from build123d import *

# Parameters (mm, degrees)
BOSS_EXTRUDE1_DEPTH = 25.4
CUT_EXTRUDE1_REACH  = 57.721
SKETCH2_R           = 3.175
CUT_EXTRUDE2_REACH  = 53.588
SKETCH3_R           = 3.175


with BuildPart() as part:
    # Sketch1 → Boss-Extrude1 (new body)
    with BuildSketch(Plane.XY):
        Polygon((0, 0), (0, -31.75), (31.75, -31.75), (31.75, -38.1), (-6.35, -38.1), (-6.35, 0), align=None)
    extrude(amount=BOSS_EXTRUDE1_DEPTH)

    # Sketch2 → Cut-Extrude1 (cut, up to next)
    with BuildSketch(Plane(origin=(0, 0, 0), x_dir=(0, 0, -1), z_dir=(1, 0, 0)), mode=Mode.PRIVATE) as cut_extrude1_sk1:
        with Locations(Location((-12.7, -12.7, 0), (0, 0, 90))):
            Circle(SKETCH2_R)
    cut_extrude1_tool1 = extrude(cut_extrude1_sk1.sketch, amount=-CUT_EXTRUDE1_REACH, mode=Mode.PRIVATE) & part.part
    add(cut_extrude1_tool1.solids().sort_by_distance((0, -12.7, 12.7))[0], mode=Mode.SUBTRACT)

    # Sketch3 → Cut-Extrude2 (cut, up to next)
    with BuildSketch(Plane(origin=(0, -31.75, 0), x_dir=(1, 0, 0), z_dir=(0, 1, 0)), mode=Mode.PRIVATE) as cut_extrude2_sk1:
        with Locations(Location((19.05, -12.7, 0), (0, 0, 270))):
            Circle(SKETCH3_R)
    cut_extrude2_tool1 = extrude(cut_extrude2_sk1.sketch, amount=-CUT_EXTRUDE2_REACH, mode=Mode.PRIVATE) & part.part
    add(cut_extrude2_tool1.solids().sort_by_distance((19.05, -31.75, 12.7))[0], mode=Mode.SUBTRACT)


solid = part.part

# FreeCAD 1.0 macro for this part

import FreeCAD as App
import Part
import Sketcher
Q = App.Units.Quantity


def add_polygon(sketch, points):
    """Adds a closed chain of lines whose ends are joined by coincident constraints."""
    first, n = sketch.GeometryCount, len(points)
    for a, b in zip(points, points[1:] + points[:1]):
        sketch.addGeometry(Part.LineSegment(App.Vector(*a, 0), App.Vector(*b, 0)), False)
    for i in range(n):
        sketch.addConstraint(Sketcher.Constraint("Coincident", first + i, 2, first + (i + 1) % n, 1))

doc = App.newDocument("Part")
body = doc.addObject("PartDesign::Body", "Body")

sketch1 = body.newObject("Sketcher::SketchObject", "Sketch")
sketch1.AttachmentSupport = (doc.getObject("XY_Plane"), [""])
sketch1.MapMode = "FlatFace"
add_polygon(sketch1, [(0, -31.75), (0, 0), (-6.35, 0), (-6.35, -38.1), (31.75, -38.1), (31.75, -31.75)])
sketch1.addConstraint([
    Sketcher.Constraint("Vertical", 0),
    Sketcher.Constraint("Horizontal", 1),
    Sketcher.Constraint("Vertical", 2),
    Sketcher.Constraint("Horizontal", 3),
    Sketcher.Constraint("Vertical", 4),
    Sketcher.Constraint("Horizontal", 5),
    Sketcher.Constraint("Coincident", 0, 2, -1, 1),
    Sketcher.Constraint("Equal", 5, 0),
    Sketcher.Constraint("Equal", 3, 2),
    Sketcher.Constraint("DistanceX", 3, 1, 3, 2, Q("1.5 in")),
    Sketcher.Constraint("DistanceX", 1, 2, 1, 1, Q("0.25 in")),
])
pad1 = body.newObject("PartDesign::Pad", "Pad")
pad1.Profile = sketch1
pad1.Length = Q("1 in")

sketch2 = body.newObject("Sketcher::SketchObject", "Sketch001")
sketch2.AttachmentSupport = (doc.getObject("YZ_Plane"), [""])
sketch2.MapMode = "FlatFace"
sketch2.addGeometry(Part.Circle(App.Vector(-12.7, 12.7, 0), App.Vector(0, 0, 1), 3.175), False)
sketch2.addConstraint([
    Sketcher.Constraint("Diameter", 0, Q("0.25 in")),
    Sketcher.Constraint("DistanceX", 0, 3, -1, 1, Q("0.5 in")),
    Sketcher.Constraint("DistanceY", -1, 1, 0, 3, Q("0.5 in")),
])
pocket1 = body.newObject("PartDesign::Pocket", "Pocket")
pocket1.Profile = sketch2
pocket1.Type = "UpToFirst"

sketch3 = body.newObject("Sketcher::SketchObject", "Sketch002")
sketch3.AttachmentSupport = (doc.getObject("XZ_Plane"), [""])
sketch3.MapMode = "FlatFace"
sketch3.AttachmentOffset = App.Placement(App.Vector(0, 0, 1.25 * 25.4), App.Rotation())
sketch3.addGeometry(Part.Circle(App.Vector(19.05, 12.7, 0), App.Vector(0, 0, 1), 3.175), False)
sketch3.addConstraint([
    Sketcher.Constraint("Diameter", 0, Q("0.25 in")),
    Sketcher.Constraint("DistanceY", -1, 1, 0, 3, Q("0.5 in")),
    Sketcher.Constraint("DistanceX", -1, 1, 0, 3, Q("0.75 in")),
])
pocket2 = body.newObject("PartDesign::Pocket", "Pocket001")
pocket2.Profile = sketch3
pocket2.Type = "UpToFirst"
pocket2.Reversed = True

doc.recompute()
